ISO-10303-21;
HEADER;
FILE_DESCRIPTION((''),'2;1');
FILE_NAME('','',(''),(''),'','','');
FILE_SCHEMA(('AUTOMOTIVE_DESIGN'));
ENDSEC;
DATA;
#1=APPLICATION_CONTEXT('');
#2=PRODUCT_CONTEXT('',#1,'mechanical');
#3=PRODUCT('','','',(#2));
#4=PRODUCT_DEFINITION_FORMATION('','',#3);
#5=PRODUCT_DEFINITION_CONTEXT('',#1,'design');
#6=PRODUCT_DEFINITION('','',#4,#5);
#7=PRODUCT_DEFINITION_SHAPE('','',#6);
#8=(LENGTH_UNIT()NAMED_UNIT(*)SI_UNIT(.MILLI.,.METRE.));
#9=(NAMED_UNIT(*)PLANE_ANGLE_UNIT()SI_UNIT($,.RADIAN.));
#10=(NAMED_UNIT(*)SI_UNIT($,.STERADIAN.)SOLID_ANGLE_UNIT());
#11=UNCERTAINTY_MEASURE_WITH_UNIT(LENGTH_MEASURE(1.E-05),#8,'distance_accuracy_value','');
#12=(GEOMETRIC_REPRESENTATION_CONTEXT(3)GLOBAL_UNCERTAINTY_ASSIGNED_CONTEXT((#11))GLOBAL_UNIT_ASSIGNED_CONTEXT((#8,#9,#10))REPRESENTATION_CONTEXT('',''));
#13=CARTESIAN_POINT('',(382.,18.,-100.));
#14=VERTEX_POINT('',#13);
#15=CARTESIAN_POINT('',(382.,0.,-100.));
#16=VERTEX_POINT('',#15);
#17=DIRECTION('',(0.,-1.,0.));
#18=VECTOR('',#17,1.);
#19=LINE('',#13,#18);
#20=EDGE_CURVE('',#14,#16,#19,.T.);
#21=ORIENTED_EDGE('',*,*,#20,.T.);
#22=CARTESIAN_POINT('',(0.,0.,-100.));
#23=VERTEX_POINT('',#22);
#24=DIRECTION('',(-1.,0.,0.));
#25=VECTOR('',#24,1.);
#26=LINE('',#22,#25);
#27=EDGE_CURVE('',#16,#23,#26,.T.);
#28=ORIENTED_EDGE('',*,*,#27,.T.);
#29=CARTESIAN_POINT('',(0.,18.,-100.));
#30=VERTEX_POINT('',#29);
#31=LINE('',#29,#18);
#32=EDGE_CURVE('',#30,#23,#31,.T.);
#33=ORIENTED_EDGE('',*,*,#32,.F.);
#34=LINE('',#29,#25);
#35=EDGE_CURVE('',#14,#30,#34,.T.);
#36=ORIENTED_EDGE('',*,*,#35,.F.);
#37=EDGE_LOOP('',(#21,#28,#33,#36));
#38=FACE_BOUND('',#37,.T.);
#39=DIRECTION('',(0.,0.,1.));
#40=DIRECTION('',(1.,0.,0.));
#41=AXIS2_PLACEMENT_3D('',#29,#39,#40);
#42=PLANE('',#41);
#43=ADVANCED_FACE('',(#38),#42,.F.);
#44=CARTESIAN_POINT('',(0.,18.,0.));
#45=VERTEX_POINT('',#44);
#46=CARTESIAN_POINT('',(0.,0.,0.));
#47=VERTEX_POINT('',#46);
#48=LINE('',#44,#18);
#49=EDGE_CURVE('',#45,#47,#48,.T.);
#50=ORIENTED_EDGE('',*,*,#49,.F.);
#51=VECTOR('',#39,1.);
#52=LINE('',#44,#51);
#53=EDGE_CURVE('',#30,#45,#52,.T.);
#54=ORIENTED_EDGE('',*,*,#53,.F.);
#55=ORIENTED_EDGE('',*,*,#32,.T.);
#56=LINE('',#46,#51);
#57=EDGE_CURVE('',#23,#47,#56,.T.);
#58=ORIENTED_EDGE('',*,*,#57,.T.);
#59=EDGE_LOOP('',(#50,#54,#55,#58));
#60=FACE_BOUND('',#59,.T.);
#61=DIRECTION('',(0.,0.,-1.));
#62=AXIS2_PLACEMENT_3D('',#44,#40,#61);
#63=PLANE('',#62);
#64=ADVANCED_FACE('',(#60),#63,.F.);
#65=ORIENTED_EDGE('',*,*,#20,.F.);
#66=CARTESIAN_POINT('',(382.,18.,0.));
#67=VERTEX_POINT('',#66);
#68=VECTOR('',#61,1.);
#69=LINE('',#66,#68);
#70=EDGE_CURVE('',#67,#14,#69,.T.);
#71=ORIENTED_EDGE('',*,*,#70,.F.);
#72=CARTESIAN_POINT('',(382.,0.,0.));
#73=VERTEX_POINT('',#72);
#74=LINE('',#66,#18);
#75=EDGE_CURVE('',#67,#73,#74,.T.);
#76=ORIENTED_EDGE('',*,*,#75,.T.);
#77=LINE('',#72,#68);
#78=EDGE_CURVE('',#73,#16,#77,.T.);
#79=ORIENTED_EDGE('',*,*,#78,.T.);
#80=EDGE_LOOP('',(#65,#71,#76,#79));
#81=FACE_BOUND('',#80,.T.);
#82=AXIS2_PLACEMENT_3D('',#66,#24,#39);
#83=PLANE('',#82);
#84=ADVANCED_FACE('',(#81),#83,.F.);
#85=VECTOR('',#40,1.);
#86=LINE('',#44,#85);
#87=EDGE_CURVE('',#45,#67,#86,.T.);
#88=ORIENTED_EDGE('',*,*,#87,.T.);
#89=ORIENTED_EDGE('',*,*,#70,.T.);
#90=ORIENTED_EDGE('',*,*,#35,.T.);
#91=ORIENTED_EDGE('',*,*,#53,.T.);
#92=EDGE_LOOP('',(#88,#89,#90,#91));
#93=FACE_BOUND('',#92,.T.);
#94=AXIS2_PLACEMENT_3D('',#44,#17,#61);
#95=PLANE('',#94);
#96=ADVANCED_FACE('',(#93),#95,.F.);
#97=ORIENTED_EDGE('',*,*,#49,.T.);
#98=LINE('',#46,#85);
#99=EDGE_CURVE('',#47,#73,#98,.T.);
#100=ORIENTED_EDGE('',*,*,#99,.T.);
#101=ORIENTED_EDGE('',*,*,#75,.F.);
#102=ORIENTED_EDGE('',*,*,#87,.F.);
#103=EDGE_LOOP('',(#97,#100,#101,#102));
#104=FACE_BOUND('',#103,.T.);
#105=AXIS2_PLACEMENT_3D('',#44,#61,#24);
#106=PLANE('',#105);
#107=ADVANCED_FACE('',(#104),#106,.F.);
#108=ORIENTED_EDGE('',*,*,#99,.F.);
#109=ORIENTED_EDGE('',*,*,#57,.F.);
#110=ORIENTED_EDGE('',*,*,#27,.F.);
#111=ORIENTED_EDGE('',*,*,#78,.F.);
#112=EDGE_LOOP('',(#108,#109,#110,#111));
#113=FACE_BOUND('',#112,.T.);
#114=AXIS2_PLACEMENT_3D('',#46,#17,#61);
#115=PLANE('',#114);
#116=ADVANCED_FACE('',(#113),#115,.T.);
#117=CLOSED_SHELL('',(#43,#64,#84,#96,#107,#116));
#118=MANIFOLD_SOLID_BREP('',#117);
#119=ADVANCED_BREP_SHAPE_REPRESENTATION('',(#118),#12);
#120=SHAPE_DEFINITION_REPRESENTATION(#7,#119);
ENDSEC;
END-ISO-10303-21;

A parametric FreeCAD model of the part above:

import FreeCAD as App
import Part
import Sketcher
from FreeCAD import Vector


def add_polygon(sketch, points):
    """Adds a closed chain of lines whose ends are joined by coincident constraints."""
    first, n = sketch.GeometryCount, len(points)
    for a, b in zip(points, points[1:] + points[:1]):
        sketch.addGeometry(Part.LineSegment(App.Vector(*a, 0), App.Vector(*b, 0)), False)
    for i in range(n):
        sketch.addConstraint(Sketcher.Constraint("Coincident", first + i, 2, first + (i + 1) % n, 1))

doc = App.newDocument("Part")
params = doc.addObject("Spreadsheet::Sheet", "Params")
for row, (alias, value) in enumerate([
    ("sketch1_width", "382 mm"),
    ("sketch1_height", "100 mm"),
    ("pad1_length", "18 mm"),
], start=1):
    params.set(f"A{row}", alias)
    params.set(f"B{row}", "=" + value)
    params.setAlias(f"B{row}", alias)

body = doc.addObject("PartDesign::Body", "Body")

# Sketch on XZ plane
sketch1 = body.newObject("Sketcher::SketchObject", "Sketch")
sketch1.AttachmentSupport = (doc.getObject("XZ_Plane"), [""])
sketch1.MapMode = "FlatFace"
add_polygon(sketch1, [(0, -100), (0, 0), (382, 0), (382, -100)])  # lines 0-3
sketch1.addConstraint(Sketcher.Constraint("Vertical", 0))
sketch1.addConstraint(Sketcher.Constraint("Horizontal", 1))
sketch1.addConstraint(Sketcher.Constraint("Vertical", 2))
sketch1.addConstraint(Sketcher.Constraint("Horizontal", 3))
sketch1.addConstraint(Sketcher.Constraint("Coincident", 0, 2, -1, 1))
sketch1.addConstraint(Sketcher.Constraint("DistanceX", 1, 1, 1, 2, 382.0))
sketch1.addConstraint(Sketcher.Constraint("DistanceY", 0, 1, 0, 2, 100.0))
sketch1.setExpression("Constraints[9]", "Params.sketch1_width")
sketch1.setExpression("Constraints[10]", "Params.sketch1_height")
pad1 = body.newObject("PartDesign::Pad", "Pad")
pad1.Profile = sketch1
pad1.setExpression("Length", "Params.pad1_length")
pad1.Reversed = True

doc.recompute()
